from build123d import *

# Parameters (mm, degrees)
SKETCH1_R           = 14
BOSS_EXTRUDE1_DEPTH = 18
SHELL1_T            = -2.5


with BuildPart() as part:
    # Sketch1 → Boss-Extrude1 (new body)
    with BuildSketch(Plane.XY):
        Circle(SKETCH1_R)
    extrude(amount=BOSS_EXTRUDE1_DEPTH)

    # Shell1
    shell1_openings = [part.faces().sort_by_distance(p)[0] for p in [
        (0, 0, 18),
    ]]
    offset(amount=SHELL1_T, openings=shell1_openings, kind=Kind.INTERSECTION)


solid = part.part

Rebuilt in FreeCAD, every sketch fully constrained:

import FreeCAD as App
import Part
import Sketcher

V = App.Vector
Q = App.Units.Quantity


def faces_at(feature, points):
    """Names of the faces that lie closest to the given points."""
    faces = feature.Shape.Faces
    near = lambda p: min(range(len(faces)), key=lambda i: faces[i].distToShape(Part.Vertex(*p))[0])
    return sorted({f"Face{near(p) + 1}" for p in points})

doc = App.newDocument("Part")
params = doc.addObject("Spreadsheet::Sheet", "Params")
for row, (alias, value) in enumerate([
    ("sketch1_diameter", "28 mm"),
    ("pad1_length", "18 mm"),
    ("thickness_wall", "2.5 mm"),
], start=1):
    params.set(f"A{row}", alias)
    params.set(f"B{row}", "=" + value)
    params.setAlias(f"B{row}", alias)

body = doc.addObject("PartDesign::Body", "Body")

sketch1 = body.newObject("Sketcher::SketchObject", "Sketch")
sketch1.AttachmentSupport = (doc.getObject("XY_Plane"), [""])
sketch1.MapMode = "FlatFace"
sketch1.addGeometry(Part.Circle(V(0, 0, 0), V(0, 0, 1), 14), False)
sketch1.addConstraint(Sketcher.Constraint("Coincident", 0, 3, -1, 1))
sketch1.addConstraint(Sketcher.Constraint("Diameter", 0, Q("28 mm")))
sketch1.setExpression("Constraints[1]", "Params.sketch1_diameter")
pad1 = body.newObject("PartDesign::Pad", "Pad")
pad1.Profile = sketch1
pad1.setExpression("Length", "Params.pad1_length")
doc.recompute()

thickness = body.newObject("PartDesign::Thickness", "Thickness")
thickness.Base = (pad1, faces_at(pad1, [(0, 0, 18)]))
thickness.setExpression("Value", "Params.thickness_wall")
thickness.Reversed = True
thickness.Join = "Intersection"

doc.recompute()
